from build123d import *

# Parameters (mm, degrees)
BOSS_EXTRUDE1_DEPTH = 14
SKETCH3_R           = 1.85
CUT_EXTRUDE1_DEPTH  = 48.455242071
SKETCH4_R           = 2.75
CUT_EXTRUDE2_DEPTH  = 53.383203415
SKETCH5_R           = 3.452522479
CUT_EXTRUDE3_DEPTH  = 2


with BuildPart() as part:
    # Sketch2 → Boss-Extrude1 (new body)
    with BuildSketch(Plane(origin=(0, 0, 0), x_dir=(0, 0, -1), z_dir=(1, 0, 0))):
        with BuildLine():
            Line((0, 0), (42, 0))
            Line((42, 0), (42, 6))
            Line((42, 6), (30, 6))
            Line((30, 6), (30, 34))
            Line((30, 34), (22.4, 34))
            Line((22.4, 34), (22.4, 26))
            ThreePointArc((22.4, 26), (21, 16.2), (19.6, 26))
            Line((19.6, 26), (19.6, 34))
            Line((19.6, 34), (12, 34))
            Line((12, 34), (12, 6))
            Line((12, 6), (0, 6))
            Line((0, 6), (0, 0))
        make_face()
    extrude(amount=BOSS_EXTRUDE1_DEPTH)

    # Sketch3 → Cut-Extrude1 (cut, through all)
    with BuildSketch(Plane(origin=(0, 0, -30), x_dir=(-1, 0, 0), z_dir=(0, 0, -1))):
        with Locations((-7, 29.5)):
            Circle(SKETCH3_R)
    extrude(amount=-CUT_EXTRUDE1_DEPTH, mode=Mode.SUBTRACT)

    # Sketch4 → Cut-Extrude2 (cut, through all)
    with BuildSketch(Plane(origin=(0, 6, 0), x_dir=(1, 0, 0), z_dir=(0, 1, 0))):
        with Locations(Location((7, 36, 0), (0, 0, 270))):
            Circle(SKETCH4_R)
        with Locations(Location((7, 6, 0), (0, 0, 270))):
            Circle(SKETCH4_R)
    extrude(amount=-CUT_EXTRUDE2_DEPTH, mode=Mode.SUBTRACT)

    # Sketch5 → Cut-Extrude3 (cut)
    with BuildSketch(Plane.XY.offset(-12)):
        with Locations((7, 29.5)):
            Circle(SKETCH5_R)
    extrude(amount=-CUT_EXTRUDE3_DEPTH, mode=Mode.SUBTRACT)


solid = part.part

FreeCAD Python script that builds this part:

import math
import FreeCAD as App
import Part
import Sketcher
Q = App.Units.Quantity

doc = App.newDocument("Part")
params = doc.addObject("Spreadsheet::Sheet", "Params")
for row, (alias, value) in enumerate([
    ("sketch1_radius", "5 mm"),
    ("sketch1_width", "6 mm"),
    ("sketch1_width2", "28 mm"),
    ("sketch1_width3", "8 mm"),
    ("sketch1_height", "42 mm"),
    ("pad1_length", "14 mm"),
    ("sketch2_diameter", "3.7 mm"),
    ("sketch3_diameter", "5.5 mm"),
    ("pocket3_length", "2 mm"),
], start=1):
    params.set(f"A{row}", alias)
    params.set(f"B{row}", "=" + value)
    params.setAlias(f"B{row}", alias)

body = doc.addObject("PartDesign::Body", "Body")

# Sketch on YZ plane
sketch1 = doc.addObject("Sketcher::SketchObject", "Sketch")
body.addObject(sketch1)
sketch1.AttachmentSupport = (doc.YZ_Plane, [""])
sketch1.MapMode = "FlatFace"
sketch1.addGeometry([
    Part.LineSegment(App.Vector(0, 0, 0), App.Vector(0, -42, 0)),  # 0
    Part.LineSegment(App.Vector(0, -42, 0), App.Vector(6, -42, 0)),  # 1
    Part.LineSegment(App.Vector(6, -42, 0), App.Vector(6, -30, 0)),  # 2
    Part.LineSegment(App.Vector(6, -30, 0), App.Vector(34, -30, 0)),  # 3
    Part.LineSegment(App.Vector(34, -30, 0), App.Vector(34, -22.4, 0)),  # 4
    Part.LineSegment(App.Vector(34, -22.4, 0), App.Vector(26, -22.4, 0)),  # 5
    Part.ArcOfCircle(Part.Circle(App.Vector(21.2, -21, 0), App.Vector(0, 0, 1), 5), math.radians(16), math.radians(344)),  # 6
    Part.LineSegment(App.Vector(26, -19.6, 0), App.Vector(34, -19.6, 0)),  # 7
    Part.LineSegment(App.Vector(34, -19.6, 0), App.Vector(34, -12, 0)),  # 8
    Part.LineSegment(App.Vector(34, -12, 0), App.Vector(6, -12, 0)),  # 9
    Part.LineSegment(App.Vector(6, -12, 0), App.Vector(6, 0, 0)),  # 10
    Part.LineSegment(App.Vector(6, 0, 0), App.Vector(0, 0, 0)),  # 11
], False)
sketch1.addConstraint([
    Sketcher.Constraint("Coincident", 0, 2, 1, 1),
    Sketcher.Constraint("Coincident", 1, 2, 2, 1),
    Sketcher.Constraint("Coincident", 2, 2, 3, 1),
    Sketcher.Constraint("Coincident", 3, 2, 4, 1),
    Sketcher.Constraint("Coincident", 4, 2, 5, 1),
    Sketcher.Constraint("Coincident", 5, 2, 6, 2),
    Sketcher.Constraint("Coincident", 6, 1, 7, 1),
    Sketcher.Constraint("Coincident", 7, 2, 8, 1),
    Sketcher.Constraint("Coincident", 8, 2, 9, 1),
    Sketcher.Constraint("Coincident", 9, 2, 10, 1),
    Sketcher.Constraint("Coincident", 10, 2, 11, 1),
    Sketcher.Constraint("Coincident", 11, 2, 0, 1),
    Sketcher.Constraint("Vertical", 0),
    Sketcher.Constraint("Horizontal", 1),
    Sketcher.Constraint("Vertical", 2),
    Sketcher.Constraint("Horizontal", 3),
    Sketcher.Constraint("Vertical", 4),
    Sketcher.Constraint("Horizontal", 5),
    Sketcher.Constraint("Horizontal", 7),
    Sketcher.Constraint("Vertical", 8),
    Sketcher.Constraint("Horizontal", 9),
    Sketcher.Constraint("Vertical", 10),
    Sketcher.Constraint("Horizontal", 11),
    Sketcher.Constraint("Coincident", 11, 2, -1, 1),
    Sketcher.Constraint("Vertical", 5, 2, 6, 1),
    Sketcher.Constraint("Vertical", 4, 2, 7, 2),
    Sketcher.Constraint("Vertical", 2, 2, 9, 2),
    Sketcher.Constraint("Equal", 4, 8),
    Sketcher.Constraint("Equal", 2, 10),
    Sketcher.Constraint("Radius", 6, Q("5 mm")),
    Sketcher.Constraint("DistanceX", 1, 1, 1, 2, Q("6 mm")),
    Sketcher.Constraint("DistanceX", 3, 1, 3, 2, Q("28 mm")),
    Sketcher.Constraint("DistanceX", 5, 2, 5, 1, Q("8 mm")),
    Sketcher.Constraint("DistanceY", 0, 2, 0, 1, Q("42 mm")),
    Sketcher.Constraint("DistanceY", 2, 1, 2, 2, Q("12 mm")),
    Sketcher.Constraint("DistanceY", 4, 1, 4, 2, Q("7.6 mm")),
])
sketch1.setExpression("Constraints[29]", "Params.sketch1_radius")
sketch1.setExpression("Constraints[30]", "Params.sketch1_width")
sketch1.setExpression("Constraints[31]", "Params.sketch1_width2")
sketch1.setExpression("Constraints[32]", "Params.sketch1_width3")
sketch1.setExpression("Constraints[33]", "Params.sketch1_height")
pad1 = doc.addObject("PartDesign::Pad", "Pad")
body.addObject(pad1)
pad1.Profile = sketch1
pad1.setExpression("Length", "Params.pad1_length")

# Sketch on XY plane
sketch2 = doc.addObject("Sketcher::SketchObject", "Sketch001")
body.addObject(sketch2)
sketch2.AttachmentSupport = (doc.XY_Plane, [""])
sketch2.MapMode = "FlatFace"
sketch2.AttachmentOffset = App.Placement(App.Vector(0, 0, -30), App.Rotation())
sketch2.addGeometry(Part.Circle(App.Vector(7, 29.5, 0), App.Vector(0, 0, 1), 1.9), False)
sketch2.addConstraint([
    Sketcher.Constraint("Diameter", 0, Q("3.7 mm")),
    Sketcher.Constraint("DistanceX", -1, 1, 0, 3, Q("7 mm")),
    Sketcher.Constraint("DistanceY", -1, 1, 0, 3, Q("29.5 mm")),
])
sketch2.setExpression("Constraints[0]", "Params.sketch2_diameter")
pocket1 = doc.addObject("PartDesign::Pocket", "Pocket")
body.addObject(pocket1)
pocket1.Profile = sketch2
pocket1.Type = "ThroughAll"
pocket1.Reversed = True

# Sketch on XZ plane
sketch3 = doc.addObject("Sketcher::SketchObject", "Sketch002")
body.addObject(sketch3)
sketch3.AttachmentSupport = (doc.XZ_Plane, [""])
sketch3.MapMode = "FlatFace"
sketch3.AttachmentOffset = App.Placement(App.Vector(0, 0, -6), App.Rotation())
sketch3.addGeometry([
    Part.Circle(App.Vector(7, -36, 0), App.Vector(0, 0, 1), 2.8),
    Part.Circle(App.Vector(7, -6, 0), App.Vector(0, 0, 1), 2.8),
], False)
sketch3.addConstraint([
    Sketcher.Constraint("Equal", 0, 1),
    Sketcher.Constraint("Vertical", 0, 3, 1, 3),
    Sketcher.Constraint("Diameter", 0, Q("5.5 mm")),
    Sketcher.Constraint("DistanceX", -1, 1, 0, 3, Q("7 mm")),
    Sketcher.Constraint("DistanceY", 0, 3, -1, 1, Q("36 mm")),
    Sketcher.Constraint("DistanceY", 1, 3, -1, 1, Q("6 mm")),
])
sketch3.setExpression("Constraints[2]", "Params.sketch3_diameter")
pocket2 = doc.addObject("PartDesign::Pocket", "Pocket001")
body.addObject(pocket2)
pocket2.Profile = sketch3
pocket2.Type = "ThroughAll"
pocket2.Reversed = True

# Sketch on XY plane
sketch4 = doc.addObject("Sketcher::SketchObject", "Sketch003")
body.addObject(sketch4)
sketch4.AttachmentSupport = (doc.XY_Plane, [""])
sketch4.MapMode = "FlatFace"
sketch4.AttachmentOffset = App.Placement(App.Vector(0, 0, -12), App.Rotation())
sketch4.addGeometry(Part.Circle(App.Vector(7, 29.5, 0), App.Vector(0, 0, 1), 3.5), False)
sketch4.addConstraint([
    Sketcher.Constraint("DistanceX", -1, 1, 0, 3, Q("7 mm")),
    Sketcher.Constraint("DistanceY", -1, 1, 0, 3, Q("29.5 mm")),
    Sketcher.Constraint("Diameter", 0, Q("6.905045 mm")),
])
pocket3 = doc.addObject("PartDesign::Pocket", "Pocket002")
body.addObject(pocket3)
pocket3.Profile = sketch4
pocket3.setExpression("Length", "Params.pocket3_length")

doc.recompute()
